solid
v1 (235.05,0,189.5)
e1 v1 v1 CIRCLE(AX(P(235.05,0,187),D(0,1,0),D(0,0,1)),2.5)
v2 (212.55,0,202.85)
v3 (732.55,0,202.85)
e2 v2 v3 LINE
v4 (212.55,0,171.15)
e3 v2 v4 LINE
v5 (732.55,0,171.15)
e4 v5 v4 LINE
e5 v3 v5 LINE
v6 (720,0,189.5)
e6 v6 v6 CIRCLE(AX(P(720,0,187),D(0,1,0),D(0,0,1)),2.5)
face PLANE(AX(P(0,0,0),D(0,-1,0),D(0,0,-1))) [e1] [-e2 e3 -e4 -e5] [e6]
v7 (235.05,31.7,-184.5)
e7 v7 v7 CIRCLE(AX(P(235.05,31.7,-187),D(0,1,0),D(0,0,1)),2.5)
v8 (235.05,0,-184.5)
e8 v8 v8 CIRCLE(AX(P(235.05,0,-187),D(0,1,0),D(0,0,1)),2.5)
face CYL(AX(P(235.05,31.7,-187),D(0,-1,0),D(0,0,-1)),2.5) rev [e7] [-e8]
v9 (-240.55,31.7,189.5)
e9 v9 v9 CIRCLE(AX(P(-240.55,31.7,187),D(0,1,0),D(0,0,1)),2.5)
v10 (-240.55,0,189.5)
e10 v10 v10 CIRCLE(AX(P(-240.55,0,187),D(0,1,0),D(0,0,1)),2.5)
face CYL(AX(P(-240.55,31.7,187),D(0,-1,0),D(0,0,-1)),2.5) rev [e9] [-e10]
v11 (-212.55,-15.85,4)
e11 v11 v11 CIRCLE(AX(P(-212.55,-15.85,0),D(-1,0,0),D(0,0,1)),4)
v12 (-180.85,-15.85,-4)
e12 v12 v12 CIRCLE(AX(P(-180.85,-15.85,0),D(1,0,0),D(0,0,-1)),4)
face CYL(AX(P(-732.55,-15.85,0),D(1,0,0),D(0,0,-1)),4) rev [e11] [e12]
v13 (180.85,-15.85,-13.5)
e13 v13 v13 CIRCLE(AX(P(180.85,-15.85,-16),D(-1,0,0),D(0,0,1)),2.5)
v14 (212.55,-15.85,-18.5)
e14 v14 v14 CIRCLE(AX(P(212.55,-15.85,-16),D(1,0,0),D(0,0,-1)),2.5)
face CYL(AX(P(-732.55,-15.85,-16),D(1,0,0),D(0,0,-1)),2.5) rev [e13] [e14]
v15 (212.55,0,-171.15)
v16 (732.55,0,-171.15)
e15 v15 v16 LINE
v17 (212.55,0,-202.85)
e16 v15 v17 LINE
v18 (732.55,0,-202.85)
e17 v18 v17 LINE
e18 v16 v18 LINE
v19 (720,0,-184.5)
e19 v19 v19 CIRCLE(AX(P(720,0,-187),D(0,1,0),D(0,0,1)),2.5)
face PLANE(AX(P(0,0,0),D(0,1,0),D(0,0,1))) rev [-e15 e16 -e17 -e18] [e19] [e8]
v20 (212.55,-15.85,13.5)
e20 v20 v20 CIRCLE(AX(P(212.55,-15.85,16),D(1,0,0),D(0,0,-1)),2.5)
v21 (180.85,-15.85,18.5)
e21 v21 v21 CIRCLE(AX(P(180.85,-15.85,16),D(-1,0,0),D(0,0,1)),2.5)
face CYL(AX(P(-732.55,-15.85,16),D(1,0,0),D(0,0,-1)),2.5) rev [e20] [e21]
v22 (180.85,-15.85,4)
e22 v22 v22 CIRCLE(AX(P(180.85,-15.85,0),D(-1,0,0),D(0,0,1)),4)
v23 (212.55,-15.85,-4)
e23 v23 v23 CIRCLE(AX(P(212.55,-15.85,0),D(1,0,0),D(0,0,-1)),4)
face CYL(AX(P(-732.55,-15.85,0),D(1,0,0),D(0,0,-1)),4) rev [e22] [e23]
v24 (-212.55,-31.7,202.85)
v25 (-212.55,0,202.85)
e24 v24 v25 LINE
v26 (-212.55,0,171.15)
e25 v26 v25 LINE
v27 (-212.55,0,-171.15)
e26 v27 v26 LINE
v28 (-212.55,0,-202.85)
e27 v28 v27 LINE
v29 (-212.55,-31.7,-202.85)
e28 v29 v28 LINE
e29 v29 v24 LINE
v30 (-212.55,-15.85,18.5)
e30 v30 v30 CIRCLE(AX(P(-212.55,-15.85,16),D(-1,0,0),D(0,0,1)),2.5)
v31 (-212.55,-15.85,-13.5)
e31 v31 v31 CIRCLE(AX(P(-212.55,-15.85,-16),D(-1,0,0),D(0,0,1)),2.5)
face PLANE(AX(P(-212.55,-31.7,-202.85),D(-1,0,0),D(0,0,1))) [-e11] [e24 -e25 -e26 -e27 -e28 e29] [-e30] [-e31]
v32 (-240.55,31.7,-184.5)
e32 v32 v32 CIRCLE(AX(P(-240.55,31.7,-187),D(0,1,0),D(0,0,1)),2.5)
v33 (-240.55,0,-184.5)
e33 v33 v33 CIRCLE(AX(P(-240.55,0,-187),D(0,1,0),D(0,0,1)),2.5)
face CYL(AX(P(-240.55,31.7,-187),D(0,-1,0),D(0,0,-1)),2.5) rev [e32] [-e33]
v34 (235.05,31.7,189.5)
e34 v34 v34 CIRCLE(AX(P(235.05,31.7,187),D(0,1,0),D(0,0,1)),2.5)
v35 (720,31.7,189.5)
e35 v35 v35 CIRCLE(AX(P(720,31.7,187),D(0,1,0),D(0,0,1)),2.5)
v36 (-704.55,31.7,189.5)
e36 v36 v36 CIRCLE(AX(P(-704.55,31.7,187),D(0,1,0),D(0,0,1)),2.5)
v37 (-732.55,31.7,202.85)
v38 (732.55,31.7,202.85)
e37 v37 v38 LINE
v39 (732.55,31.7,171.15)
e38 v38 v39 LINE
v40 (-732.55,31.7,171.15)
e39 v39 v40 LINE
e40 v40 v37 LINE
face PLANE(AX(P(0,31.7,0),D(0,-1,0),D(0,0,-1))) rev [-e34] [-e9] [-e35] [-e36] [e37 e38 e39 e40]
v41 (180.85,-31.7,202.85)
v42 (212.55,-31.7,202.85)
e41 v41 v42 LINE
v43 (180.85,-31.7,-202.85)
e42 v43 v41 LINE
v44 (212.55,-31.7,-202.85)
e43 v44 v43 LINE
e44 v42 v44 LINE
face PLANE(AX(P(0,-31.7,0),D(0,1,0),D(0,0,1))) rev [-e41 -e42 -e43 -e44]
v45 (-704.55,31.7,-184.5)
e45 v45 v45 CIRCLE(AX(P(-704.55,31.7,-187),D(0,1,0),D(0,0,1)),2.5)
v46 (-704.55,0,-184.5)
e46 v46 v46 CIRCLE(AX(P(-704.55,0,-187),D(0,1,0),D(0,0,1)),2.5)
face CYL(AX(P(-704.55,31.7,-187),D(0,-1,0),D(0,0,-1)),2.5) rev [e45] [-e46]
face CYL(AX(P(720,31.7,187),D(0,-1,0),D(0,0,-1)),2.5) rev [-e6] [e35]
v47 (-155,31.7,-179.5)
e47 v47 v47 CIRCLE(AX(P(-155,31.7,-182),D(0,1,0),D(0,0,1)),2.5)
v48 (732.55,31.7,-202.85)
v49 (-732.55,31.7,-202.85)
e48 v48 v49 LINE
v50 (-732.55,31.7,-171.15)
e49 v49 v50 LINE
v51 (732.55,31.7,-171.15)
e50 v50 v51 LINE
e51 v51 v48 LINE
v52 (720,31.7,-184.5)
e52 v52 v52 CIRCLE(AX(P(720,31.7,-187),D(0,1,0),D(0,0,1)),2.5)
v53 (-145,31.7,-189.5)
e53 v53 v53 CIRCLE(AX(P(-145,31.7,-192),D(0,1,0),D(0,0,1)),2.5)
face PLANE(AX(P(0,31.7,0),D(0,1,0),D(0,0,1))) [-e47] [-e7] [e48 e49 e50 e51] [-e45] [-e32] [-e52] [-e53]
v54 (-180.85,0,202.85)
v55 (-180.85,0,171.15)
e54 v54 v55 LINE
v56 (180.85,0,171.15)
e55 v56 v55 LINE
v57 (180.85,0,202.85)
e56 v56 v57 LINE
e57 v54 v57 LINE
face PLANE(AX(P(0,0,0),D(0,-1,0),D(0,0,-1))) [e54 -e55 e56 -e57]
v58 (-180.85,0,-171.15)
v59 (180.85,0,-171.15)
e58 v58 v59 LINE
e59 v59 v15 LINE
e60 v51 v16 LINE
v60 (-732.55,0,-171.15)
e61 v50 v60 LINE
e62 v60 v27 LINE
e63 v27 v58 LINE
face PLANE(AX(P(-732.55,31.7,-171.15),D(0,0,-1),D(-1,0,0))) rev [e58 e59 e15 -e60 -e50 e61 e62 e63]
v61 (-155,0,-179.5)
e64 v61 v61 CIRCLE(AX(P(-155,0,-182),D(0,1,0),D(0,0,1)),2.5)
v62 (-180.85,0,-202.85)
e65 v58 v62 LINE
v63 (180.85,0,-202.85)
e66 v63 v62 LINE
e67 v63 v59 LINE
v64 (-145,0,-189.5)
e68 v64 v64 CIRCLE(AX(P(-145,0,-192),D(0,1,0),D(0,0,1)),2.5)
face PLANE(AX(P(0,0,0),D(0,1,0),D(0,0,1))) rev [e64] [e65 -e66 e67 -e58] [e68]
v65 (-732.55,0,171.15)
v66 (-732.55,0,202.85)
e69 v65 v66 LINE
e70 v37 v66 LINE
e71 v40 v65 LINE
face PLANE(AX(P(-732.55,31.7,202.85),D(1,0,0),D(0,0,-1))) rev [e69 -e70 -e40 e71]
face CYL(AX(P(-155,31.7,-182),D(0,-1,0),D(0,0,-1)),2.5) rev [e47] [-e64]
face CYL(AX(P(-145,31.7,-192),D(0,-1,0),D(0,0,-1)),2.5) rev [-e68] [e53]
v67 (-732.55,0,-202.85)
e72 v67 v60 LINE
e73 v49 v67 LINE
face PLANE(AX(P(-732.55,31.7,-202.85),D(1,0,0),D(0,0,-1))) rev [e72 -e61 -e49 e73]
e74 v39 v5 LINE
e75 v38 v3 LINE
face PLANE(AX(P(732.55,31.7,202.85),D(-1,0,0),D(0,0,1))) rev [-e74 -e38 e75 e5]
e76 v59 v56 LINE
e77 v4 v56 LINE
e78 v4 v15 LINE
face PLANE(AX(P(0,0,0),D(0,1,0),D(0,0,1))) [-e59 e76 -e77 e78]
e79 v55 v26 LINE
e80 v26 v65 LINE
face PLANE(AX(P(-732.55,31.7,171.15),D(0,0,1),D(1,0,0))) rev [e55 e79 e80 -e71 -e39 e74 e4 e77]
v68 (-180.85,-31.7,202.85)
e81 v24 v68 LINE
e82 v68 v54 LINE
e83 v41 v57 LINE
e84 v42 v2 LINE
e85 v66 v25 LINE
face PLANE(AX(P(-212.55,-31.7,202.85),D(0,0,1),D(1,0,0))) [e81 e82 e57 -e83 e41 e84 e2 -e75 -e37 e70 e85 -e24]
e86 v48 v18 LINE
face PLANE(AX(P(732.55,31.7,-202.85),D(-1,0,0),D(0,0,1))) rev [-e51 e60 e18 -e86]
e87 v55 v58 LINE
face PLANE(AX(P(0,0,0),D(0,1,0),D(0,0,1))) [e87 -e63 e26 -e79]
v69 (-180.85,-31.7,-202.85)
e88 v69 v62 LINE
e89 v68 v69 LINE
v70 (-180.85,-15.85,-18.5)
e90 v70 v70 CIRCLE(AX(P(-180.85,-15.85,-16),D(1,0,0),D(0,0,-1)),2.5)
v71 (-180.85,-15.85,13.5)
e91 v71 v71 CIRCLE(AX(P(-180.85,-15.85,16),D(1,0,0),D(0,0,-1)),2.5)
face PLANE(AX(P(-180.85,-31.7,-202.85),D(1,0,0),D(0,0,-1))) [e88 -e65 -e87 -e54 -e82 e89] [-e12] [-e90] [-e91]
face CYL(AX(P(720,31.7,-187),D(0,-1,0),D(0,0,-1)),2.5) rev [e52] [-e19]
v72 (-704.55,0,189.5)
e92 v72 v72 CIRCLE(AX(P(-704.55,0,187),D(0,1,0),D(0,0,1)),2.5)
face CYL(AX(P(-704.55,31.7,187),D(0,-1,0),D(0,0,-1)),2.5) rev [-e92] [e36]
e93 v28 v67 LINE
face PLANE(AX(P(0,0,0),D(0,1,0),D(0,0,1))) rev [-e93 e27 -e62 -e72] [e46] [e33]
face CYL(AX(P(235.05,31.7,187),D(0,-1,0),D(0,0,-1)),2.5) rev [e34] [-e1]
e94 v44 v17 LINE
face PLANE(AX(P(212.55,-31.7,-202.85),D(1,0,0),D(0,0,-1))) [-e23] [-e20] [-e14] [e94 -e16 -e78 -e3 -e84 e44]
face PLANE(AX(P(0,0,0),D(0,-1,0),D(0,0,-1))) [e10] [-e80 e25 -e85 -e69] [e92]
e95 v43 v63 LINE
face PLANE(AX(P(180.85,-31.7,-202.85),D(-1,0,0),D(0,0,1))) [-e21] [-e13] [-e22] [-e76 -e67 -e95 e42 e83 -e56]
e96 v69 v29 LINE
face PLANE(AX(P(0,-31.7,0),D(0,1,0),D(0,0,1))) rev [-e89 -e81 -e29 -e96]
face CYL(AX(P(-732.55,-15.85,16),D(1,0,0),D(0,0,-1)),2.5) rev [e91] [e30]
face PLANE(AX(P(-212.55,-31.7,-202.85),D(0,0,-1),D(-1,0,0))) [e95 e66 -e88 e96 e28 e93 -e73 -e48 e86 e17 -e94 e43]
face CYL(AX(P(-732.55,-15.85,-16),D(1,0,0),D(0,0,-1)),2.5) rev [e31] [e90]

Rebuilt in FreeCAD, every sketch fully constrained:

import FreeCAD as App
import Part
import Sketcher
Q = App.Units.Quantity


def add_polygon(sketch, points):
    """Adds a closed chain of lines whose ends are joined by coincident constraints."""
    first, n = sketch.GeometryCount, len(points)
    for a, b in zip(points, points[1:] + points[:1]):
        sketch.addGeometry(Part.LineSegment(App.Vector(*a, 0), App.Vector(*b, 0)), False)
    for i in range(n):
        sketch.addConstraint(Sketcher.Constraint("Coincident", first + i, 2, first + (i + 1) % n, 1))

doc = App.newDocument("Part")
body = doc.addObject("PartDesign::Body", "Body")

# Sketch on XZ plane
sketch1 = doc.addObject("Sketcher::SketchObject", "Sketch")
body.addObject(sketch1)
sketch1.AttachmentSupport = (doc.XZ_Plane, [""])
sketch1.MapMode = "FlatFace"
add_polygon(sketch1, [(-212.55, -202.85), (-212.55, 202.85), (-180.85, 202.85), (-180.85, -202.85)])  # lines 0-3
sketch1.addConstraint(Sketcher.Constraint("Vertical", 0))
sketch1.addConstraint(Sketcher.Constraint("Horizontal", 1))
sketch1.addConstraint(Sketcher.Constraint("Vertical", 2))
sketch1.addConstraint(Sketcher.Constraint("Horizontal", 3))
sketch1.addConstraint(Sketcher.Constraint("DistanceX", 1, 1, 1, 2, Q("31.7 mm")))
sketch1.addConstraint(Sketcher.Constraint("DistanceY", 0, 1, 0, 2, Q("405.7 mm")))
sketch1.addConstraint(Sketcher.Constraint("DistanceX", 0, 2, -1, 1, Q("212.55 mm")))
sketch1.addConstraint(Sketcher.Constraint("DistanceY", -1, 1, 0, 2, Q("202.85 mm")))
pad1 = doc.addObject("PartDesign::Pad", "Pad")
body.addObject(pad1)
pad1.Profile = sketch1
pad1.Length = 31.7
body2 = doc.addObject("PartDesign::Body", "Body001")

# Sketch on XZ plane
sketch2 = doc.addObject("Sketcher::SketchObject", "Sketch001")
body2.addObject(sketch2)
sketch2.AttachmentSupport = (doc.getObject("XZ_Plane001"), [""])
sketch2.MapMode = "FlatFace"
add_polygon(sketch2, [(180.85, -202.85), (180.85, 202.85), (212.55, 202.85), (212.55, -202.85)])  # lines 0-3
sketch2.addConstraint(Sketcher.Constraint("Vertical", 0))
sketch2.addConstraint(Sketcher.Constraint("Horizontal", 1))
sketch2.addConstraint(Sketcher.Constraint("Vertical", 2))
sketch2.addConstraint(Sketcher.Constraint("Horizontal", 3))
sketch2.addConstraint(Sketcher.Constraint("DistanceX", 1, 1, 1, 2, Q("31.7 mm")))
sketch2.addConstraint(Sketcher.Constraint("DistanceY", 0, 1, 0, 2, Q("405.7 mm")))
sketch2.addConstraint(Sketcher.Constraint("DistanceX", -1, 1, 0, 2, Q("180.85 mm")))
sketch2.addConstraint(Sketcher.Constraint("DistanceY", -1, 1, 0, 2, Q("202.85 mm")))
pad2 = doc.addObject("PartDesign::Pad", "Pad001")
body2.addObject(pad2)
pad2.Profile = sketch2
pad2.Length = 31.7
body.AllowCompound = True
doc.recompute()

boolean = doc.addObject("PartDesign::Boolean", "Boolean")
body.addObject(boolean)
boolean.Type = "Fuse"
boolean.addObjects([body2])

# Sketch on XZ plane
sketch3 = doc.addObject("Sketcher::SketchObject", "Sketch002")
body.addObject(sketch3)
sketch3.AttachmentSupport = (doc.XZ_Plane, [""])
sketch3.MapMode = "FlatFace"
add_polygon(sketch3, [(-732.55, -202.85), (-732.55, -171.15), (732.55, -171.15), (732.55, -202.85)])  # lines 0-3
add_polygon(sketch3, [(-732.55, 171.15), (-732.55, 202.85), (732.55, 202.85), (732.55, 171.15)])  # lines 4-7
sketch3.addConstraint(Sketcher.Constraint("Vertical", 0))
sketch3.addConstraint(Sketcher.Constraint("Horizontal", 1))
sketch3.addConstraint(Sketcher.Constraint("Vertical", 2))
sketch3.addConstraint(Sketcher.Constraint("Horizontal", 3))
sketch3.addConstraint(Sketcher.Constraint("Vertical", 4))
sketch3.addConstraint(Sketcher.Constraint("Horizontal", 5))
sketch3.addConstraint(Sketcher.Constraint("Vertical", 6))
sketch3.addConstraint(Sketcher.Constraint("Horizontal", 7))
sketch3.addConstraint(Sketcher.Constraint("Symmetric", 2, 2, 4, 2, -1, 1))
sketch3.addConstraint(Sketcher.Constraint("Symmetric", 0, 2, 6, 2, -1, 1))
sketch3.addConstraint(Sketcher.Constraint("Vertical", 3, 2, 4, 2))
sketch3.addConstraint(Sketcher.Constraint("DistanceX", 1, 1, 1, 2, Q("1465.1 mm")))
sketch3.addConstraint(Sketcher.Constraint("DistanceY", 0, 1, 0, 2, Q("31.7 mm")))
sketch3.addConstraint(Sketcher.Constraint("DistanceY", 0, 2, 4, 2, Q("374 mm")))
pad3 = doc.addObject("PartDesign::Pad", "Pad002")
body.addObject(pad3)
pad3.Profile = sketch3
pad3.Length = 31.7
pad3.Reversed = True

# Sketch on XZ plane
sketch4 = doc.addObject("Sketcher::SketchObject", "Sketch003")
body.addObject(sketch4)
sketch4.AttachmentSupport = (doc.XZ_Plane, [""])
sketch4.MapMode = "FlatFace"
sketch4.addGeometry(Part.Circle(App.Vector(720, -187, 0), App.Vector(0, 0, 1), 2.5), False)
sketch4.addGeometry(Part.Circle(App.Vector(720, 187, 0), App.Vector(0, 0, 1), 2.5), False)
sketch4.addGeometry(Part.Circle(App.Vector(235.05, -187, 0), App.Vector(0, 0, 1), 2.5), False)
sketch4.addGeometry(Part.Circle(App.Vector(235.05, 187, 0), App.Vector(0, 0, 1), 2.5), False)
sketch4.addGeometry(Part.Circle(App.Vector(-704.55, -187, 0), App.Vector(0, 0, 1), 2.5), False)
sketch4.addGeometry(Part.Circle(App.Vector(-704.55, 187, 0), App.Vector(0, 0, 1), 2.5), False)
sketch4.addGeometry(Part.Circle(App.Vector(-240.55, -187, 0), App.Vector(0, 0, 1), 2.5), False)
sketch4.addGeometry(Part.Circle(App.Vector(-240.55, 187, 0), App.Vector(0, 0, 1), 2.5), False)
sketch4.addGeometry(Part.Circle(App.Vector(-155, -182, 0), App.Vector(0, 0, 1), 2.5), False)
sketch4.addGeometry(Part.Circle(App.Vector(-145, -192, 0), App.Vector(0, 0, 1), 2.5), False)
sketch4.addConstraint(Sketcher.Constraint("Equal", 0, 1))
sketch4.addConstraint(Sketcher.Constraint("Equal", 1, 2))
sketch4.addConstraint(Sketcher.Constraint("Equal", 2, 3))
sketch4.addConstraint(Sketcher.Constraint("Equal", 3, 4))
sketch4.addConstraint(Sketcher.Constraint("Equal", 4, 5))
sketch4.addConstraint(Sketcher.Constraint("Equal", 5, 6))
sketch4.addConstraint(Sketcher.Constraint("Equal", 6, 7))
sketch4.addConstraint(Sketcher.Constraint("Equal", 7, 8))
sketch4.addConstraint(Sketcher.Constraint("Equal", 8, 9))
sketch4.addConstraint(Sketcher.Constraint("Symmetric", 0, 3, 1, 3, -1))
sketch4.addConstraint(Sketcher.Constraint("Symmetric", 2, 3, 3, 3, -1))
sketch4.addConstraint(Sketcher.Constraint("Symmetric", 4, 3, 5, 3, -1))
sketch4.addConstraint(Sketcher.Constraint("Symmetric", 6, 3, 7, 3, -1))
sketch4.addConstraint(Sketcher.Constraint("Horizontal", 0, 3, 2, 3))
sketch4.addConstraint(Sketcher.Constraint("Horizontal", 2, 3, 4, 3))
sketch4.addConstraint(Sketcher.Constraint("Horizontal", 4, 3, 6, 3))
sketch4.addConstraint(Sketcher.Constraint("Diameter", 0, Q("5 mm")))
sketch4.addConstraint(Sketcher.Constraint("DistanceX", -1, 1, 0, 3, Q("720 mm")))
sketch4.addConstraint(Sketcher.Constraint("DistanceY", 0, 3, -1, 1, Q("187 mm")))
sketch4.addConstraint(Sketcher.Constraint("DistanceX", 8, 3, -1, 1, Q("155 mm")))
sketch4.addConstraint(Sketcher.Constraint("DistanceY", 8, 3, -1, 1, Q("182 mm")))
sketch4.addConstraint(Sketcher.Constraint("DistanceX", 9, 3, -1, 1, Q("145 mm")))
sketch4.addConstraint(Sketcher.Constraint("DistanceY", 9, 3, -1, 1, Q("192 mm")))
sketch4.addConstraint(Sketcher.Constraint("DistanceX", 4, 3, 6, 3, Q("464 mm")))
sketch4.addConstraint(Sketcher.Constraint("DistanceX", 4, 3, 2, 3, Q("939.6 mm")))
sketch4.addConstraint(Sketcher.Constraint("DistanceX", -1, 1, 2, 3, Q("235.05 mm")))
pocket1 = doc.addObject("PartDesign::Pocket", "Pocket")
body.addObject(pocket1)
pocket1.Profile = sketch4
pocket1.Length = 31.7

# Sketch on YZ plane
sketch5 = doc.addObject("Sketcher::SketchObject", "Sketch004")
body.addObject(sketch5)
sketch5.AttachmentSupport = (doc.YZ_Plane, [""])
sketch5.MapMode = "FlatFace"
sketch5.addGeometry(Part.Circle(App.Vector(-15.85, -16, 0), App.Vector(0, 0, 1), 2.5), False)
sketch5.addGeometry(Part.Circle(App.Vector(-15.85, 16, 0), App.Vector(0, 0, 1), 2.5), False)
sketch5.addGeometry(Part.Circle(App.Vector(-15.85, 0, 0), App.Vector(0, 0, 1), 4), False)
sketch5.addConstraint(Sketcher.Constraint("Equal", 0, 1))
sketch5.addConstraint(Sketcher.Constraint("Symmetric", 0, 3, 1, 3, -1))
sketch5.addConstraint(Sketcher.Constraint("PointOnObject", 2, 3, -1))
sketch5.addConstraint(Sketcher.Constraint("Vertical", 1, 3, 2, 3))
sketch5.addConstraint(Sketcher.Constraint("Diameter", 0, Q("5 mm")))
sketch5.addConstraint(Sketcher.Constraint("Diameter", 2, Q("8 mm")))
sketch5.addConstraint(Sketcher.Constraint("DistanceY", 0, 3, -1, 1, Q("16 mm")))
sketch5.addConstraint(Sketcher.Constraint("DistanceX", 0, 3, -1, 1, Q("15.85 mm")))
pocket2 = doc.addObject("PartDesign::Pocket", "Pocket001")
body.addObject(pocket2)
pocket2.Profile = sketch5
pocket2.Type = "ThroughAll"
pocket2.Midplane = True

doc.recompute()
